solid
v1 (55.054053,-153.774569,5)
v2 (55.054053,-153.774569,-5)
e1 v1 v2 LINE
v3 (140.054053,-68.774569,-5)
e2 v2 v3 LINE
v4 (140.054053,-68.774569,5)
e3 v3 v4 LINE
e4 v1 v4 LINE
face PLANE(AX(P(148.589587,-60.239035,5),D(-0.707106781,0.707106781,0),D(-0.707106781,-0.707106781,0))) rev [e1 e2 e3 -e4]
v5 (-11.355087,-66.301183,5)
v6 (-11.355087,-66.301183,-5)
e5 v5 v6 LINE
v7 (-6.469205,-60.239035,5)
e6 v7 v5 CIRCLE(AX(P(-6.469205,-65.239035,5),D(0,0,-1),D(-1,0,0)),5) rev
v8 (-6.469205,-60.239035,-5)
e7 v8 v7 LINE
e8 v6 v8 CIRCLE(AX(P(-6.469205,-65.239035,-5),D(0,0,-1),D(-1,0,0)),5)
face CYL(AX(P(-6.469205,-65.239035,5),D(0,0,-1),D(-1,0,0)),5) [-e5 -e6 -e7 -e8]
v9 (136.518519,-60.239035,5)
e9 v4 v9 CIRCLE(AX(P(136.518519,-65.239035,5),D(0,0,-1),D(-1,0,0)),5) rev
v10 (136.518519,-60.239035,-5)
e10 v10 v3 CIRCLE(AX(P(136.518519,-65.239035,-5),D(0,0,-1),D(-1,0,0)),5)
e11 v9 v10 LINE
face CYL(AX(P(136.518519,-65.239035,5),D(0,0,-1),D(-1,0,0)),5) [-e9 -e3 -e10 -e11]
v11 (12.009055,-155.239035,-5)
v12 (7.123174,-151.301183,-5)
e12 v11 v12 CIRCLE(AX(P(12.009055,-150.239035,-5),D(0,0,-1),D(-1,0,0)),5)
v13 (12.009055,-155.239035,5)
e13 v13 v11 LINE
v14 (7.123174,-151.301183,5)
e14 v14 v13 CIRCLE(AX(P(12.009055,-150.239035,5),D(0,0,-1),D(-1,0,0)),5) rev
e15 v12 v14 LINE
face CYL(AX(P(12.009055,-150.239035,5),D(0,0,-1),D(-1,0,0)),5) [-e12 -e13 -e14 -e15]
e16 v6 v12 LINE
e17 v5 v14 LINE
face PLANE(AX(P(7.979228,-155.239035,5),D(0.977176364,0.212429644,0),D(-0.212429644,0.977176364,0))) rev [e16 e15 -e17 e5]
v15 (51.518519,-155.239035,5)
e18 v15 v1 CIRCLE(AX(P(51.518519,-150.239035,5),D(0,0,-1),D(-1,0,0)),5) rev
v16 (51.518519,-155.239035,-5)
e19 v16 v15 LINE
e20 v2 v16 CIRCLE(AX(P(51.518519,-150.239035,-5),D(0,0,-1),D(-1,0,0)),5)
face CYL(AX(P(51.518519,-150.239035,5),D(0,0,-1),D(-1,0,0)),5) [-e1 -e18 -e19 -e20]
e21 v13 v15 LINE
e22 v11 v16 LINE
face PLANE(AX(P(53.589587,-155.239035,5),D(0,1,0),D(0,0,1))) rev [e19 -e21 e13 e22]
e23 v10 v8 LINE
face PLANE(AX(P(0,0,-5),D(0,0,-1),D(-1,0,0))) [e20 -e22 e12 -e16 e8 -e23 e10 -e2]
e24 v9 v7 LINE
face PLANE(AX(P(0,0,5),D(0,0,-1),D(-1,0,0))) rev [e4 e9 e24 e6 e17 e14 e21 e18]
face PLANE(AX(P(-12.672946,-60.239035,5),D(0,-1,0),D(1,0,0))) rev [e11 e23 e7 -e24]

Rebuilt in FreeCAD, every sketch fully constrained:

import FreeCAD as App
import Part
import Sketcher
from FreeCAD import Vector
Q = App.Units.Quantity


def edges_at(feature, points):
    """Names of the edges that pass closest to the given points."""
    edges = feature.Shape.Edges
    near = lambda p: min(range(len(edges)), key=lambda i: edges[i].distToShape(Part.Vertex(*p))[0])
    return sorted({f"Edge{near(p) + 1}" for p in points})

doc = App.newDocument("Part")
body = doc.addObject("PartDesign::Body", "Body")

sketch1 = body.newObject("Sketcher::SketchObject", "Sketch")
sketch1.AttachmentSupport = (doc.getObject("XY_Plane"), [""])
sketch1.MapMode = "FlatFace"
sketch1.addGeometry(Part.LineSegment(Vector(148.589587, -60.239035, 0), Vector(-12.672946, -60.239035, 0)), False)
sketch1.addGeometry(Part.LineSegment(Vector(-12.672946, -60.239035, 0), Vector(7.979228, -155.239035, 0)), False)
sketch1.addGeometry(Part.LineSegment(Vector(7.979228, -155.239035, 0), Vector(53.589587, -155.239035, 0)), False)
sketch1.addGeometry(Part.LineSegment(Vector(53.589587, -155.239035, 0), Vector(148.589587, -60.239035, 0)), False)
sketch1.addConstraint(Sketcher.Constraint("Coincident", 0, 2, 1, 1))
sketch1.addConstraint(Sketcher.Constraint("Coincident", 1, 2, 2, 1))
sketch1.addConstraint(Sketcher.Constraint("Coincident", 2, 2, 3, 1))
sketch1.addConstraint(Sketcher.Constraint("Coincident", 3, 2, 0, 1))
sketch1.addConstraint(Sketcher.Constraint("Horizontal", 0))
sketch1.addConstraint(Sketcher.Constraint("Horizontal", 2))
sketch1.addConstraint(Sketcher.Constraint("Angle", 3, Q("45 deg")))
sketch1.addConstraint(Sketcher.Constraint("DistanceY", 1, 2, 0, 2, Q("95 mm")))
sketch1.addConstraint(Sketcher.Constraint("DistanceX", 2, 1, 2, 2, Q("45.610359 mm")))
sketch1.addConstraint(Sketcher.Constraint("Distance", 1, Q("97.218889 mm")))
sketch1.addConstraint(Sketcher.Constraint("DistanceX", -1, 1, 1, 2, Q("7.979228 mm")))
sketch1.addConstraint(Sketcher.Constraint("DistanceY", 0, 2, -1, 1, Q("60.239035 mm")))
pad1 = body.newObject("PartDesign::Pad", "Pad")
pad1.Profile = sketch1
pad1.Length = 10
pad1.Midplane = True
doc.recompute()

fillet = body.newObject("PartDesign::Fillet", "Fillet")
fillet.Base = (pad1, edges_at(pad1, [
    (-12.673, -60.239, 0),
    (148.59, -60.239, 0),
    (53.59, -155.239, 0),
    (7.979, -155.239, 0),
]))
fillet.Radius = 5

doc.recompute()
